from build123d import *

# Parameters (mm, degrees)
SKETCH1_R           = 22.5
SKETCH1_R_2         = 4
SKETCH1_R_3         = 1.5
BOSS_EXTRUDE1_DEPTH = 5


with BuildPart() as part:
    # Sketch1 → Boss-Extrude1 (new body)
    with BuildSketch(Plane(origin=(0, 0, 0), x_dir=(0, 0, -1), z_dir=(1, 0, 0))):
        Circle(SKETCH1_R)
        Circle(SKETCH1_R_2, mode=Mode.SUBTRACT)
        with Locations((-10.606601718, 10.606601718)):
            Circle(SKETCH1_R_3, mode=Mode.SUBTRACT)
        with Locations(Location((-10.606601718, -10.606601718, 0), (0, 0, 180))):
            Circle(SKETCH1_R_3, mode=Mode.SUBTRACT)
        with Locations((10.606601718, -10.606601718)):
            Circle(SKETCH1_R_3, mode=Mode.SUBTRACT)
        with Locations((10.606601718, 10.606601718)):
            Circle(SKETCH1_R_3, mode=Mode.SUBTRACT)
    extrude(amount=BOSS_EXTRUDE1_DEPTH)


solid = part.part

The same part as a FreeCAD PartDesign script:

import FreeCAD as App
import Part
import Sketcher

doc = App.newDocument("Part")
params = doc.addObject("Spreadsheet::Sheet", "Params")
for row, (alias, value) in enumerate([
    ("sketch1_diameter", "45 mm"),
    ("sketch1_diameter2", "3 mm"),
    ("sketch1_diameter3", "8 mm"),
    ("pad1_length", "5 mm"),
], start=1):
    params.set(f"A{row}", alias)
    params.set(f"B{row}", "=" + value)
    params.setAlias(f"B{row}", alias)

body = doc.addObject("PartDesign::Body", "Body")

sketch1 = doc.addObject("Sketcher::SketchObject", "Sketch")
body.addObject(sketch1)
sketch1.AttachmentSupport = (doc.YZ_Plane, [""])
sketch1.MapMode = "FlatFace"
sketch1.addGeometry(Part.Circle(App.Vector(0, 0, 0), App.Vector(0, 0, 1), 22.5), False)
sketch1.addGeometry(Part.Circle(App.Vector(-10.6, 10.6, 0), App.Vector(0, 0, 1), 1.5), False)
sketch1.addGeometry(Part.Circle(App.Vector(-10.6, -10.6, 0), App.Vector(0, 0, 1), 1.5), False)
sketch1.addGeometry(Part.Circle(App.Vector(10.6, 10.6, 0), App.Vector(0, 0, 1), 1.5), False)
sketch1.addGeometry(Part.Circle(App.Vector(0, 0, 0), App.Vector(0, 0, 1), 4), False)
sketch1.addGeometry(Part.Circle(App.Vector(10.6, -10.6, 0), App.Vector(0, 0, 1), 1.5), False)
sketch1.addConstraint(Sketcher.Constraint("Coincident", 0, 3, -1, 1))
sketch1.addConstraint(Sketcher.Constraint("Coincident", 4, 3, -1, 1))
sketch1.addConstraint(Sketcher.Constraint("Equal", 1, 2))
sketch1.addConstraint(Sketcher.Constraint("Equal", 2, 3))
sketch1.addConstraint(Sketcher.Constraint("Equal", 3, 5))
sketch1.addConstraint(Sketcher.Constraint("Symmetric", 2, 3, 3, 3, -1, 1))
sketch1.addConstraint(Sketcher.Constraint("Symmetric", 1, 3, 5, 3, -1, 1))
sketch1.addConstraint(Sketcher.Constraint("Symmetric", 1, 3, 3, 3, -2))
sketch1.addConstraint(Sketcher.Constraint("Diameter", 0, 45.0))
sketch1.addConstraint(Sketcher.Constraint("Diameter", 1, 3.0))
sketch1.addConstraint(Sketcher.Constraint("Diameter", 4, 8.0))
sketch1.addConstraint(Sketcher.Constraint("DistanceX", 1, 3, -1, 1, 10.606602))
sketch1.addConstraint(Sketcher.Constraint("DistanceY", -1, 1, 1, 3, 10.606602))
sketch1.setExpression("Constraints[8]", "Params.sketch1_diameter")
sketch1.setExpression("Constraints[9]", "Params.sketch1_diameter2")
sketch1.setExpression("Constraints[10]", "Params.sketch1_diameter3")
pad1 = doc.addObject("PartDesign::Pad", "Pad")
body.addObject(pad1)
pad1.Profile = sketch1
pad1.setExpression("Length", "Params.pad1_length")

doc.recompute()
